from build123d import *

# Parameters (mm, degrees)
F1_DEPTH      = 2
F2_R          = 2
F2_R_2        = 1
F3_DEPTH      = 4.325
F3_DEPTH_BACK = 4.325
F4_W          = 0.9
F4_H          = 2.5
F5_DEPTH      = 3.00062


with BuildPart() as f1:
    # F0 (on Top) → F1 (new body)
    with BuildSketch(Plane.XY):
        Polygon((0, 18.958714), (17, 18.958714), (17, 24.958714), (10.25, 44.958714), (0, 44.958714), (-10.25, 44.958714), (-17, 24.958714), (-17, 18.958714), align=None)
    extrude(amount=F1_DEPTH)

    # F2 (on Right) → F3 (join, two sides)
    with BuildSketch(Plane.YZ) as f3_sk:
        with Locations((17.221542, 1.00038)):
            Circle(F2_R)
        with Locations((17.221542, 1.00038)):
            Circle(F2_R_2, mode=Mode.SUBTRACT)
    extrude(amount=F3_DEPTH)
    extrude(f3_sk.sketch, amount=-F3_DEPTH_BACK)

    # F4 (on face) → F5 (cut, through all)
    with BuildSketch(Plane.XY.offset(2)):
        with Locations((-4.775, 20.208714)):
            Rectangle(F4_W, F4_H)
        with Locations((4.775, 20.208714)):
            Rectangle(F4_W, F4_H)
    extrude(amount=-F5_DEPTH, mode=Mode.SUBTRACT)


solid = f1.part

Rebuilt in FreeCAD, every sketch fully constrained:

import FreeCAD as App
import Part
import Sketcher

V = App.Vector
Q = App.Units.Quantity

doc = App.newDocument("Part")
params = doc.addObject("Spreadsheet::Sheet", "Params")
for row, (alias, value) in enumerate([
    ("sketch1_width", "34 mm"),
    ("sketch1_height", "6 mm"),
    ("sketch1_width2", "20.5 mm"),
    ("pad1_length", "2 mm"),
    ("sketch2_diameter", "4 mm"),
    ("sketch2_diameter2", "2 mm"),
    ("pad2_length", "4.325 mm"),
    ("pad2_length2", "4.325 mm"),
    ("sketch3_width", "0.9 mm"),
    ("sketch3_height", "2.5 mm"),
], start=1):
    params.set(f"A{row}", alias)
    params.set(f"B{row}", "=" + value)
    params.setAlias(f"B{row}", alias)

body = doc.addObject("PartDesign::Body", "Body")

# Sketch on XY plane
sketch1 = doc.addObject("Sketcher::SketchObject", "Sketch")
body.addObject(sketch1)
sketch1.AttachmentSupport = (doc.XY_Plane, [""])
sketch1.MapMode = "FlatFace"
sketch1.addGeometry(Part.LineSegment(V(17, 19, 0), V(17, 25, 0)), False)
sketch1.addGeometry(Part.LineSegment(V(17, 25, 0), V(10, 45, 0)), False)
sketch1.addGeometry(Part.LineSegment(V(10, 45, 0), V(-10, 45, 0)), False)
sketch1.addGeometry(Part.LineSegment(V(-10, 45, 0), V(-17, 25, 0)), False)
sketch1.addGeometry(Part.LineSegment(V(-17, 25, 0), V(-17, 19, 0)), False)
sketch1.addGeometry(Part.LineSegment(V(-17, 19, 0), V(17, 19, 0)), False)
sketch1.addConstraint(Sketcher.Constraint("Coincident", 0, 2, 1, 1))
sketch1.addConstraint(Sketcher.Constraint("Coincident", 1, 2, 2, 1))
sketch1.addConstraint(Sketcher.Constraint("Coincident", 2, 2, 3, 1))
sketch1.addConstraint(Sketcher.Constraint("Coincident", 3, 2, 4, 1))
sketch1.addConstraint(Sketcher.Constraint("Coincident", 4, 2, 5, 1))
sketch1.addConstraint(Sketcher.Constraint("Coincident", 5, 2, 0, 1))
sketch1.addConstraint(Sketcher.Constraint("Vertical", 0))
sketch1.addConstraint(Sketcher.Constraint("Horizontal", 2))
sketch1.addConstraint(Sketcher.Constraint("Vertical", 4))
sketch1.addConstraint(Sketcher.Constraint("Horizontal", 5))
sketch1.addConstraint(Sketcher.Constraint("Symmetric", 0, 2, 3, 2, -2))
sketch1.addConstraint(Sketcher.Constraint("Equal", 1, 3))
sketch1.addConstraint(Sketcher.Constraint("DistanceX", 5, 1, 5, 2, Q("34 mm")))
sketch1.addConstraint(Sketcher.Constraint("DistanceY", 0, 1, 0, 2, Q("6 mm")))
sketch1.addConstraint(Sketcher.Constraint("DistanceX", 2, 2, 2, 1, Q("20.5 mm")))
sketch1.addConstraint(Sketcher.Constraint("DistanceY", 0, 2, 1, 2, Q("20 mm")))
sketch1.addConstraint(Sketcher.Constraint("DistanceY", -1, 1, 0, 2, Q("24.958714 mm")))
sketch1.setExpression("Constraints[12]", "Params.sketch1_width")
sketch1.setExpression("Constraints[13]", "Params.sketch1_height")
sketch1.setExpression("Constraints[14]", "Params.sketch1_width2")
pad1 = doc.addObject("PartDesign::Pad", "Pad")
body.addObject(pad1)
pad1.Profile = sketch1
pad1.setExpression("Length", "Params.pad1_length")

# Sketch on YZ plane
sketch2 = doc.addObject("Sketcher::SketchObject", "Sketch001")
body.addObject(sketch2)
sketch2.AttachmentSupport = (doc.YZ_Plane, [""])
sketch2.MapMode = "FlatFace"
sketch2.addGeometry(Part.Circle(V(17.2, 1, 0), V(0, 0, 1), 2), False)
sketch2.addGeometry(Part.Circle(V(17.2, 1, 0), V(0, 0, 1), 1), False)
sketch2.addConstraint(Sketcher.Constraint("Coincident", 1, 3, 0, 3))
sketch2.addConstraint(Sketcher.Constraint("Diameter", 0, Q("4 mm")))
sketch2.addConstraint(Sketcher.Constraint("Diameter", 1, Q("2 mm")))
sketch2.addConstraint(Sketcher.Constraint("DistanceX", -1, 1, 0, 3, Q("17.221542 mm")))
sketch2.addConstraint(Sketcher.Constraint("DistanceY", -1, 1, 0, 3, Q("1.00038 mm")))
sketch2.setExpression("Constraints[1]", "Params.sketch2_diameter")
sketch2.setExpression("Constraints[2]", "Params.sketch2_diameter2")
pad2 = doc.addObject("PartDesign::Pad", "Pad001")
body.addObject(pad2)
pad2.Profile = sketch2
pad2.Type = "TwoLengths"
pad2.setExpression("Length", "Params.pad2_length")
pad2.setExpression("Length2", "Params.pad2_length2")

# Sketch on XY plane
sketch3 = doc.addObject("Sketcher::SketchObject", "Sketch002")
body.addObject(sketch3)
sketch3.AttachmentSupport = (doc.XY_Plane, [""])
sketch3.MapMode = "FlatFace"
sketch3.AttachmentOffset = App.Placement(V(0, 0, 2), App.Rotation())
sketch3.addGeometry(Part.LineSegment(V(-5.2, 21.5, 0), V(-5.2, 19, 0)), False)
sketch3.addGeometry(Part.LineSegment(V(-5.2, 19, 0), V(-4.3, 19, 0)), False)
sketch3.addGeometry(Part.LineSegment(V(-4.3, 19, 0), V(-4.3, 21.5, 0)), False)
sketch3.addGeometry(Part.LineSegment(V(-4.3, 21.5, 0), V(-5.2, 21.5, 0)), False)
sketch3.addGeometry(Part.LineSegment(V(4.3, 21.5, 0), V(4.3, 19, 0)), False)
sketch3.addGeometry(Part.LineSegment(V(4.3, 19, 0), V(5.2, 19, 0)), False)
sketch3.addGeometry(Part.LineSegment(V(5.2, 19, 0), V(5.2, 21.5, 0)), False)
sketch3.addGeometry(Part.LineSegment(V(5.2, 21.5, 0), V(4.3, 21.5, 0)), False)
sketch3.addConstraint(Sketcher.Constraint("Coincident", 0, 2, 1, 1))
sketch3.addConstraint(Sketcher.Constraint("Coincident", 1, 2, 2, 1))
sketch3.addConstraint(Sketcher.Constraint("Coincident", 2, 2, 3, 1))
sketch3.addConstraint(Sketcher.Constraint("Coincident", 3, 2, 0, 1))
sketch3.addConstraint(Sketcher.Constraint("Coincident", 4, 2, 5, 1))
sketch3.addConstraint(Sketcher.Constraint("Coincident", 5, 2, 6, 1))
sketch3.addConstraint(Sketcher.Constraint("Coincident", 6, 2, 7, 1))
sketch3.addConstraint(Sketcher.Constraint("Coincident", 7, 2, 4, 1))
sketch3.addConstraint(Sketcher.Constraint("Vertical", 0))
sketch3.addConstraint(Sketcher.Constraint("Horizontal", 1))
sketch3.addConstraint(Sketcher.Constraint("Vertical", 2))
sketch3.addConstraint(Sketcher.Constraint("Horizontal", 3))
sketch3.addConstraint(Sketcher.Constraint("Vertical", 4))
sketch3.addConstraint(Sketcher.Constraint("Horizontal", 5))
sketch3.addConstraint(Sketcher.Constraint("Vertical", 6))
sketch3.addConstraint(Sketcher.Constraint("Horizontal", 7))
sketch3.addConstraint(Sketcher.Constraint("Symmetric", 1, 2, 4, 2, -2))
sketch3.addConstraint(Sketcher.Constraint("Symmetric", 3, 2, 6, 2, -2))
sketch3.addConstraint(Sketcher.Constraint("DistanceX", 1, 1, 1, 2, Q("0.9 mm")))
sketch3.addConstraint(Sketcher.Constraint("DistanceY", 0, 2, 0, 1, Q("2.5 mm")))
sketch3.addConstraint(Sketcher.Constraint("DistanceX", 1, 2, 4, 2, Q("8.65 mm")))
sketch3.addConstraint(Sketcher.Constraint("DistanceY", -1, 1, 0, 2, Q("18.958714 mm")))
sketch3.setExpression("Constraints[18]", "Params.sketch3_width")
sketch3.setExpression("Constraints[19]", "Params.sketch3_height")
pocket1 = doc.addObject("PartDesign::Pocket", "Pocket")
body.addObject(pocket1)
pocket1.Profile = sketch3
pocket1.Type = "ThroughAll"

doc.recompute()
